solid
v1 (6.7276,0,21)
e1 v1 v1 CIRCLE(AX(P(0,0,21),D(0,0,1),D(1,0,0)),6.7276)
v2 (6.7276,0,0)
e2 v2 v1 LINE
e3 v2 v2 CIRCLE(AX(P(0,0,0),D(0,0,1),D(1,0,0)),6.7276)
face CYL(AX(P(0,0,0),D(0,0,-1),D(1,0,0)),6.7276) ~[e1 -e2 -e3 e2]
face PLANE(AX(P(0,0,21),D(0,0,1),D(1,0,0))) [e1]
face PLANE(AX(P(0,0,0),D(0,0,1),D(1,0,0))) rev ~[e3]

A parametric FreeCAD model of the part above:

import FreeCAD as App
import Part
import Sketcher
from FreeCAD import Vector

doc = App.newDocument("Part")
body = doc.addObject("PartDesign::Body", "Body")

# Sketch on XY plane
sketch1 = body.newObject("Sketcher::SketchObject", "Sketch")
sketch1.AttachmentSupport = (doc.getObject("XY_Plane"), [""])
sketch1.MapMode = "FlatFace"
sketch1.addGeometry(Part.Circle(Vector(0, 0, 0), Vector(0, 0, 1), 6.7276), False)
sketch1.addConstraint(Sketcher.Constraint("Coincident", 0, 3, -1, 1))
sketch1.addConstraint(Sketcher.Constraint("Diameter", 0, 13.4552))
pad1 = body.newObject("PartDesign::Pad", "Pad")
pad1.Profile = sketch1
pad1.Length = 21

doc.recompute()
